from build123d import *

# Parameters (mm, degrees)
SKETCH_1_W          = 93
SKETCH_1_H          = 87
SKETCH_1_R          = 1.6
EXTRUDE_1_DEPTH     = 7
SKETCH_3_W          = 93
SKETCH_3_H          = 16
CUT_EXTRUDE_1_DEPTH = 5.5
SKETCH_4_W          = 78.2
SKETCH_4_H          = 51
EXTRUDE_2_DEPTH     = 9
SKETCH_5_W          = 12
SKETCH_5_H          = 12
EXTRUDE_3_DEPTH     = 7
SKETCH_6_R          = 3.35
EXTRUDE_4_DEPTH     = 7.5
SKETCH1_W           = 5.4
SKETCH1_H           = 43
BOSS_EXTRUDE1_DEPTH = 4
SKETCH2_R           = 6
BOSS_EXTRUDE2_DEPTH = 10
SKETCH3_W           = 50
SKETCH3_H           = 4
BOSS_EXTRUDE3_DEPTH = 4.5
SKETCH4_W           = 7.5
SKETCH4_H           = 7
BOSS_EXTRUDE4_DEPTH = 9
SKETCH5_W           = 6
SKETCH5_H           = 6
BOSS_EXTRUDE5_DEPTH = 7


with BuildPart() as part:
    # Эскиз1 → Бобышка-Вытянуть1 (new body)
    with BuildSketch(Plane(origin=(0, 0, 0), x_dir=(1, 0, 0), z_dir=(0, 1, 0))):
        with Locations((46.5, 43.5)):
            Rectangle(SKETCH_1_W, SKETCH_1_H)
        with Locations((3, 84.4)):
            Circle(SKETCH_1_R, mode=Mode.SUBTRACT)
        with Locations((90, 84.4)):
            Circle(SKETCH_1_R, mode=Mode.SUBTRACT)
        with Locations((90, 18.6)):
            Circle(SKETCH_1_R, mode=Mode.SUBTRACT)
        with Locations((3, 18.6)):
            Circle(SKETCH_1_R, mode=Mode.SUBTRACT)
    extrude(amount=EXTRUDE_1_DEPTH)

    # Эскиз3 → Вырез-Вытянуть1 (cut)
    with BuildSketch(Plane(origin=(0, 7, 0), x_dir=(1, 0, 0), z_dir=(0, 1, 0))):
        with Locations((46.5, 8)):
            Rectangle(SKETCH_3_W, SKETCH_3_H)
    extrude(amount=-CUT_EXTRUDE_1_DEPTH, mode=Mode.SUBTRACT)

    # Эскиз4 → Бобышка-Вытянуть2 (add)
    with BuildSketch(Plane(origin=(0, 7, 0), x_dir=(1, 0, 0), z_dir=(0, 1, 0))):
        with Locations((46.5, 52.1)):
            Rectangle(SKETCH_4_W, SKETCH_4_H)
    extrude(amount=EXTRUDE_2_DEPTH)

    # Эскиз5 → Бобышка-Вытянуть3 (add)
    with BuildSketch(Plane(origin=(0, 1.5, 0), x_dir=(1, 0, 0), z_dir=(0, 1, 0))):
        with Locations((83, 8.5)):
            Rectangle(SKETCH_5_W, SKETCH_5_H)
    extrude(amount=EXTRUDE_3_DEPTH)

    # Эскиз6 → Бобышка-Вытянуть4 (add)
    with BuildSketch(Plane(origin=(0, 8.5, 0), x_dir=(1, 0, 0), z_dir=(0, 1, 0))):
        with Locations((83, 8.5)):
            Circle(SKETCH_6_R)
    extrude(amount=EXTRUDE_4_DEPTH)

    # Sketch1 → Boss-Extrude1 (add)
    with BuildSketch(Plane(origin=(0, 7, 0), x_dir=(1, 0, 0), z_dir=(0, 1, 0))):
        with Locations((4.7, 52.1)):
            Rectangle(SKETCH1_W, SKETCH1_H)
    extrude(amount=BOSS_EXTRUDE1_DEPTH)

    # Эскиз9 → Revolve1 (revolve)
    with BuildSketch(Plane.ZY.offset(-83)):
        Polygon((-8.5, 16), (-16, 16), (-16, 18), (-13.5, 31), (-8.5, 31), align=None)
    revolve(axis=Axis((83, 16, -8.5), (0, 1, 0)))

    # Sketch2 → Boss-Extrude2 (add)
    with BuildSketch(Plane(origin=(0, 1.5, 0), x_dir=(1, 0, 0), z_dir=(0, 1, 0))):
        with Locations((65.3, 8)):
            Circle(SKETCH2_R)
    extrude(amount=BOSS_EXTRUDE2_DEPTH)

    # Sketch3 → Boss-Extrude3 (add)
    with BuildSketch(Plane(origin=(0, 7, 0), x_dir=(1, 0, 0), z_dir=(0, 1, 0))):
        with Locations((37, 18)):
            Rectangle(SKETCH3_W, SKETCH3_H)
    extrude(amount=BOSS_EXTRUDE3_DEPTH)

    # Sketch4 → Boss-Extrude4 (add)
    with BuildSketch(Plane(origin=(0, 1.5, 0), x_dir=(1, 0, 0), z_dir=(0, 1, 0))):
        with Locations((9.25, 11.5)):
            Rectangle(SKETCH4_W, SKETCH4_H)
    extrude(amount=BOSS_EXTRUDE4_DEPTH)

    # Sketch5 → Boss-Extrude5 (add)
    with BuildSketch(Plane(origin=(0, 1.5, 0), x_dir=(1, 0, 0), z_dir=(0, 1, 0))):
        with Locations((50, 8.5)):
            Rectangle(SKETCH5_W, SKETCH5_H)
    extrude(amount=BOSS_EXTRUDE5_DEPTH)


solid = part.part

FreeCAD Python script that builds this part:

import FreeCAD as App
import Part
import Sketcher
Q = App.Units.Quantity

doc = App.newDocument("Part")
body = doc.addObject("PartDesign::Body", "Body")

# Sketch on XZ plane
sketch1 = body.newObject("Sketcher::SketchObject", "Sketch")
sketch1.AttachmentSupport = (doc.getObject("XZ_Plane"), [""])
sketch1.MapMode = "FlatFace"
sketch1.addGeometry(Part.LineSegment(App.Vector(0, -87, 0), App.Vector(0, 0, 0)), False)
sketch1.addGeometry(Part.LineSegment(App.Vector(0, 0, 0), App.Vector(93, 0, 0)), False)
sketch1.addGeometry(Part.LineSegment(App.Vector(93, 0, 0), App.Vector(93, -87, 0)), False)
sketch1.addGeometry(Part.LineSegment(App.Vector(93, -87, 0), App.Vector(0, -87, 0)), False)
sketch1.addGeometry(Part.Circle(App.Vector(3, -18.6, 0), App.Vector(0, 0, 1), 1.6), False)
sketch1.addGeometry(Part.Circle(App.Vector(90, -18.6, 0), App.Vector(0, 0, 1), 1.6), False)
sketch1.addGeometry(Part.Circle(App.Vector(3, -84.4, 0), App.Vector(0, 0, 1), 1.6), False)
sketch1.addGeometry(Part.Circle(App.Vector(90, -84.4, 0), App.Vector(0, 0, 1), 1.6), False)
sketch1.addConstraint(Sketcher.Constraint("Coincident", 0, 2, 1, 1))
sketch1.addConstraint(Sketcher.Constraint("Coincident", 1, 2, 2, 1))
sketch1.addConstraint(Sketcher.Constraint("Coincident", 2, 2, 3, 1))
sketch1.addConstraint(Sketcher.Constraint("Coincident", 3, 2, 0, 1))
sketch1.addConstraint(Sketcher.Constraint("Vertical", 0))
sketch1.addConstraint(Sketcher.Constraint("Horizontal", 1))
sketch1.addConstraint(Sketcher.Constraint("Vertical", 2))
sketch1.addConstraint(Sketcher.Constraint("Horizontal", 3))
sketch1.addConstraint(Sketcher.Constraint("Coincident", 0, 2, -1, 1))
sketch1.addConstraint(Sketcher.Constraint("Equal", 4, 5))
sketch1.addConstraint(Sketcher.Constraint("Equal", 5, 6))
sketch1.addConstraint(Sketcher.Constraint("Equal", 6, 7))
sketch1.addConstraint(Sketcher.Constraint("Horizontal", 4, 3, 5, 3))
sketch1.addConstraint(Sketcher.Constraint("Horizontal", 6, 3, 7, 3))
sketch1.addConstraint(Sketcher.Constraint("Vertical", 4, 3, 6, 3))
sketch1.addConstraint(Sketcher.Constraint("Vertical", 5, 3, 7, 3))
sketch1.addConstraint(Sketcher.Constraint("Diameter", 4, Q("3.2 mm")))
sketch1.addConstraint(Sketcher.Constraint("DistanceX", 1, 1, 1, 2, Q("93 mm")))
sketch1.addConstraint(Sketcher.Constraint("DistanceY", 0, 1, 0, 2, Q("87 mm")))
sketch1.addConstraint(Sketcher.Constraint("DistanceX", -1, 1, 4, 3, Q("3 mm")))
sketch1.addConstraint(Sketcher.Constraint("DistanceX", -1, 1, 5, 3, Q("90 mm")))
sketch1.addConstraint(Sketcher.Constraint("DistanceY", 4, 3, -1, 1, Q("18.6 mm")))
sketch1.addConstraint(Sketcher.Constraint("DistanceY", 6, 3, -1, 1, Q("84.4 mm")))
pad1 = body.newObject("PartDesign::Pad", "Pad")
pad1.Profile = sketch1
pad1.Length = 7
pad1.Reversed = True

# Sketch on XZ plane
sketch2 = body.newObject("Sketcher::SketchObject", "Sketch001")
sketch2.AttachmentSupport = (doc.getObject("XZ_Plane"), [""])
sketch2.MapMode = "FlatFace"
sketch2.AttachmentOffset = App.Placement(App.Vector(0, 0, -7), App.Rotation())
sketch2.addGeometry(Part.LineSegment(App.Vector(0, -16, 0), App.Vector(0, 0, 0)), False)
sketch2.addGeometry(Part.LineSegment(App.Vector(0, 0, 0), App.Vector(93, 0, 0)), False)
sketch2.addGeometry(Part.LineSegment(App.Vector(93, 0, 0), App.Vector(93, -16, 0)), False)
sketch2.addGeometry(Part.LineSegment(App.Vector(93, -16, 0), App.Vector(0, -16, 0)), False)
sketch2.addConstraint(Sketcher.Constraint("Coincident", 0, 2, 1, 1))
sketch2.addConstraint(Sketcher.Constraint("Coincident", 1, 2, 2, 1))
sketch2.addConstraint(Sketcher.Constraint("Coincident", 2, 2, 3, 1))
sketch2.addConstraint(Sketcher.Constraint("Coincident", 3, 2, 0, 1))
sketch2.addConstraint(Sketcher.Constraint("Vertical", 0))
sketch2.addConstraint(Sketcher.Constraint("Horizontal", 1))
sketch2.addConstraint(Sketcher.Constraint("Vertical", 2))
sketch2.addConstraint(Sketcher.Constraint("Horizontal", 3))
sketch2.addConstraint(Sketcher.Constraint("Coincident", 0, 2, -1, 1))
sketch2.addConstraint(Sketcher.Constraint("DistanceX", 1, 1, 1, 2, Q("93 mm")))
sketch2.addConstraint(Sketcher.Constraint("DistanceY", 0, 1, 0, 2, Q("16 mm")))
pocket1 = body.newObject("PartDesign::Pocket", "Pocket")
pocket1.Profile = sketch2
pocket1.Length = 5.5
pocket1.Reversed = True

# Sketch on XZ plane
sketch3 = body.newObject("Sketcher::SketchObject", "Sketch002")
sketch3.AttachmentSupport = (doc.getObject("XZ_Plane"), [""])
sketch3.MapMode = "FlatFace"
sketch3.AttachmentOffset = App.Placement(App.Vector(0, 0, -7), App.Rotation())
sketch3.addGeometry(Part.LineSegment(App.Vector(7.4, -77.6, 0), App.Vector(7.4, -26.6, 0)), False)
sketch3.addGeometry(Part.LineSegment(App.Vector(7.4, -26.6, 0), App.Vector(85.6, -26.6, 0)), False)
sketch3.addGeometry(Part.LineSegment(App.Vector(85.6, -26.6, 0), App.Vector(85.6, -77.6, 0)), False)
sketch3.addGeometry(Part.LineSegment(App.Vector(85.6, -77.6, 0), App.Vector(7.4, -77.6, 0)), False)
sketch3.addConstraint(Sketcher.Constraint("Coincident", 0, 2, 1, 1))
sketch3.addConstraint(Sketcher.Constraint("Coincident", 1, 2, 2, 1))
sketch3.addConstraint(Sketcher.Constraint("Coincident", 2, 2, 3, 1))
sketch3.addConstraint(Sketcher.Constraint("Coincident", 3, 2, 0, 1))
sketch3.addConstraint(Sketcher.Constraint("Vertical", 0))
sketch3.addConstraint(Sketcher.Constraint("Horizontal", 1))
sketch3.addConstraint(Sketcher.Constraint("Vertical", 2))
sketch3.addConstraint(Sketcher.Constraint("Horizontal", 3))
sketch3.addConstraint(Sketcher.Constraint("DistanceY", 0, 1, 0, 2, Q("51 mm")))
sketch3.addConstraint(Sketcher.Constraint("DistanceX", 1, 1, 1, 2, Q("78.2 mm")))
sketch3.addConstraint(Sketcher.Constraint("DistanceX", -1, 1, 0, 2, Q("7.4 mm")))
sketch3.addConstraint(Sketcher.Constraint("DistanceY", 0, 2, -1, 1, Q("26.6 mm")))
pad2 = body.newObject("PartDesign::Pad", "Pad001")
pad2.Profile = sketch3
pad2.Length = 9
pad2.Reversed = True

# Sketch on XZ plane
sketch4 = body.newObject("Sketcher::SketchObject", "Sketch003")
sketch4.AttachmentSupport = (doc.getObject("XZ_Plane"), [""])
sketch4.MapMode = "FlatFace"
sketch4.AttachmentOffset = App.Placement(App.Vector(0, 0, -1.5), App.Rotation())
sketch4.addGeometry(Part.LineSegment(App.Vector(77, -14.5, 0), App.Vector(77, -2.5, 0)), False)
sketch4.addGeometry(Part.LineSegment(App.Vector(77, -2.5, 0), App.Vector(89, -2.5, 0)), False)
sketch4.addGeometry(Part.LineSegment(App.Vector(89, -2.5, 0), App.Vector(89, -14.5, 0)), False)
sketch4.addGeometry(Part.LineSegment(App.Vector(89, -14.5, 0), App.Vector(77, -14.5, 0)), False)
sketch4.addConstraint(Sketcher.Constraint("Coincident", 0, 2, 1, 1))
sketch4.addConstraint(Sketcher.Constraint("Coincident", 1, 2, 2, 1))
sketch4.addConstraint(Sketcher.Constraint("Coincident", 2, 2, 3, 1))
sketch4.addConstraint(Sketcher.Constraint("Coincident", 3, 2, 0, 1))
sketch4.addConstraint(Sketcher.Constraint("Vertical", 0))
sketch4.addConstraint(Sketcher.Constraint("Horizontal", 1))
sketch4.addConstraint(Sketcher.Constraint("Vertical", 2))
sketch4.addConstraint(Sketcher.Constraint("Horizontal", 3))
sketch4.addConstraint(Sketcher.Constraint("Equal", 3, 0))
sketch4.addConstraint(Sketcher.Constraint("DistanceX", 1, 1, 1, 2, Q("12 mm")))
sketch4.addConstraint(Sketcher.Constraint("DistanceX", -1, 1, 0, 2, Q("77 mm")))
sketch4.addConstraint(Sketcher.Constraint("DistanceY", 0, 2, -1, 1, Q("2.5 mm")))
pad3 = body.newObject("PartDesign::Pad", "Pad002")
pad3.Profile = sketch4
pad3.Length = 7
pad3.Reversed = True

# Sketch on XZ plane
sketch5 = body.newObject("Sketcher::SketchObject", "Sketch004")
sketch5.AttachmentSupport = (doc.getObject("XZ_Plane"), [""])
sketch5.MapMode = "FlatFace"
sketch5.AttachmentOffset = App.Placement(App.Vector(0, 0, -8.5), App.Rotation())
sketch5.addGeometry(Part.Circle(App.Vector(83, -8.5, 0), App.Vector(0, 0, 1), 3.35), False)
sketch5.addConstraint(Sketcher.Constraint("Diameter", 0, Q("6.7 mm")))
sketch5.addConstraint(Sketcher.Constraint("DistanceX", -1, 1, 0, 3, Q("83 mm")))
sketch5.addConstraint(Sketcher.Constraint("DistanceY", 0, 3, -1, 1, Q("8.5 mm")))
pad4 = body.newObject("PartDesign::Pad", "Pad003")
pad4.Profile = sketch5
pad4.Length = 7.5
pad4.Reversed = True

# Sketch on XZ plane
sketch6 = body.newObject("Sketcher::SketchObject", "Sketch005")
sketch6.AttachmentSupport = (doc.getObject("XZ_Plane"), [""])
sketch6.MapMode = "FlatFace"
sketch6.AttachmentOffset = App.Placement(App.Vector(0, 0, -7), App.Rotation())
sketch6.addGeometry(Part.LineSegment(App.Vector(2, -73.6, 0), App.Vector(2, -30.6, 0)), False)
sketch6.addGeometry(Part.LineSegment(App.Vector(2, -30.6, 0), App.Vector(7.4, -30.6, 0)), False)
sketch6.addGeometry(Part.LineSegment(App.Vector(7.4, -30.6, 0), App.Vector(7.4, -73.6, 0)), False)
sketch6.addGeometry(Part.LineSegment(App.Vector(7.4, -73.6, 0), App.Vector(2, -73.6, 0)), False)
sketch6.addConstraint(Sketcher.Constraint("Coincident", 0, 2, 1, 1))
sketch6.addConstraint(Sketcher.Constraint("Coincident", 1, 2, 2, 1))
sketch6.addConstraint(Sketcher.Constraint("Coincident", 2, 2, 3, 1))
sketch6.addConstraint(Sketcher.Constraint("Coincident", 3, 2, 0, 1))
sketch6.addConstraint(Sketcher.Constraint("Vertical", 0))
sketch6.addConstraint(Sketcher.Constraint("Horizontal", 1))
sketch6.addConstraint(Sketcher.Constraint("Vertical", 2))
sketch6.addConstraint(Sketcher.Constraint("Horizontal", 3))
sketch6.addConstraint(Sketcher.Constraint("DistanceY", 0, 1, 0, 2, Q("43 mm")))
sketch6.addConstraint(Sketcher.Constraint("DistanceX", 1, 1, 1, 2, Q("5.4 mm")))
sketch6.addConstraint(Sketcher.Constraint("DistanceX", -1, 1, 0, 2, Q("2 mm")))
sketch6.addConstraint(Sketcher.Constraint("DistanceY", 0, 2, -1, 1, Q("30.6 mm")))
pad5 = body.newObject("PartDesign::Pad", "Pad004")
pad5.Profile = sketch6
pad5.Length = 4
pad5.Reversed = True

# Sketch on YZ plane
sketch7 = body.newObject("Sketcher::SketchObject", "Sketch006")
sketch7.AttachmentSupport = (doc.getObject("YZ_Plane"), [""])
sketch7.MapMode = "FlatFace"
sketch7.AttachmentOffset = App.Placement(App.Vector(0, 0, 83), App.Rotation())
sketch7.addGeometry(Part.LineSegment(App.Vector(16, -16, 0), App.Vector(16, -8.5, 0)), False)
sketch7.addGeometry(Part.LineSegment(App.Vector(16, -8.5, 0), App.Vector(31, -8.5, 0)), False)
sketch7.addGeometry(Part.LineSegment(App.Vector(31, -8.5, 0), App.Vector(31, -13.5, 0)), False)
sketch7.addGeometry(Part.LineSegment(App.Vector(31, -13.5, 0), App.Vector(18, -16, 0)), False)
sketch7.addGeometry(Part.LineSegment(App.Vector(18, -16, 0), App.Vector(16, -16, 0)), False)
sketch7.addGeometry(Part.LineSegment(App.Vector(16, -8.5, 0), App.Vector(31, -8.5, 0)), True)  # axis
sketch7.addConstraint(Sketcher.Constraint("Coincident", 0, 2, 1, 1))
sketch7.addConstraint(Sketcher.Constraint("Coincident", 1, 2, 2, 1))
sketch7.addConstraint(Sketcher.Constraint("Coincident", 2, 2, 3, 1))
sketch7.addConstraint(Sketcher.Constraint("Coincident", 3, 2, 4, 1))
sketch7.addConstraint(Sketcher.Constraint("Coincident", 4, 2, 0, 1))
sketch7.addConstraint(Sketcher.Constraint("Vertical", 0))
sketch7.addConstraint(Sketcher.Constraint("Horizontal", 1))
sketch7.addConstraint(Sketcher.Constraint("Vertical", 2))
sketch7.addConstraint(Sketcher.Constraint("Horizontal", 4))
sketch7.addConstraint(Sketcher.Constraint("Horizontal", 5))
sketch7.addConstraint(Sketcher.Constraint("Coincident", 5, 1, 0, 2))
sketch7.addConstraint(Sketcher.Constraint("Vertical", 2, 2, 5, 2))
sketch7.addConstraint(Sketcher.Constraint("DistanceX", 1, 1, 1, 2, Q("15 mm")))
sketch7.addConstraint(Sketcher.Constraint("DistanceX", 4, 2, 4, 1, Q("2 mm")))
sketch7.addConstraint(Sketcher.Constraint("DistanceY", 2, 2, 2, 1, Q("5 mm")))
sketch7.addConstraint(Sketcher.Constraint("DistanceY", 0, 1, 0, 2, Q("7.5 mm")))
sketch7.addConstraint(Sketcher.Constraint("DistanceX", -1, 1, 0, 2, Q("16 mm")))
sketch7.addConstraint(Sketcher.Constraint("DistanceY", 3, 2, -1, 1, Q("16 mm")))
revolution = body.newObject("PartDesign::Revolution", "Revolution")
revolution.Profile = sketch7
revolution.ReferenceAxis = (sketch7, ["Axis0"])
revolution.Angle = 360

# Sketch on XZ plane
sketch8 = body.newObject("Sketcher::SketchObject", "Sketch007")
sketch8.AttachmentSupport = (doc.getObject("XZ_Plane"), [""])
sketch8.MapMode = "FlatFace"
sketch8.AttachmentOffset = App.Placement(App.Vector(0, 0, -1.5), App.Rotation())
sketch8.addGeometry(Part.Circle(App.Vector(65.3, -8, 0), App.Vector(0, 0, 1), 6), False)
sketch8.addConstraint(Sketcher.Constraint("Diameter", 0, Q("12 mm")))
sketch8.addConstraint(Sketcher.Constraint("DistanceY", 0, 3, -1, 1, Q("8 mm")))
sketch8.addConstraint(Sketcher.Constraint("DistanceX", -1, 1, 0, 3, Q("65.3 mm")))
pad6 = body.newObject("PartDesign::Pad", "Pad005")
pad6.Profile = sketch8
pad6.Length = 10
pad6.Reversed = True

# Sketch on XZ plane
sketch9 = body.newObject("Sketcher::SketchObject", "Sketch008")
sketch9.AttachmentSupport = (doc.getObject("XZ_Plane"), [""])
sketch9.MapMode = "FlatFace"
sketch9.AttachmentOffset = App.Placement(App.Vector(0, 0, -7), App.Rotation())
sketch9.addGeometry(Part.LineSegment(App.Vector(12, -20, 0), App.Vector(12, -16, 0)), False)
sketch9.addGeometry(Part.LineSegment(App.Vector(12, -16, 0), App.Vector(62, -16, 0)), False)
sketch9.addGeometry(Part.LineSegment(App.Vector(62, -16, 0), App.Vector(62, -20, 0)), False)
sketch9.addGeometry(Part.LineSegment(App.Vector(62, -20, 0), App.Vector(12, -20, 0)), False)
sketch9.addConstraint(Sketcher.Constraint("Coincident", 0, 2, 1, 1))
sketch9.addConstraint(Sketcher.Constraint("Coincident", 1, 2, 2, 1))
sketch9.addConstraint(Sketcher.Constraint("Coincident", 2, 2, 3, 1))
sketch9.addConstraint(Sketcher.Constraint("Coincident", 3, 2, 0, 1))
sketch9.addConstraint(Sketcher.Constraint("Vertical", 0))
sketch9.addConstraint(Sketcher.Constraint("Horizontal", 1))
sketch9.addConstraint(Sketcher.Constraint("Vertical", 2))
sketch9.addConstraint(Sketcher.Constraint("Horizontal", 3))
sketch9.addConstraint(Sketcher.Constraint("DistanceX", 1, 1, 1, 2, Q("50 mm")))
sketch9.addConstraint(Sketcher.Constraint("DistanceY", 0, 1, 0, 2, Q("4 mm")))
sketch9.addConstraint(Sketcher.Constraint("DistanceX", -1, 1, 0, 2, Q("12 mm")))
sketch9.addConstraint(Sketcher.Constraint("DistanceY", 0, 2, -1, 1, Q("16 mm")))
pad7 = body.newObject("PartDesign::Pad", "Pad006")
pad7.Profile = sketch9
pad7.Length = 4.5
pad7.Reversed = True

# Sketch on XZ plane
sketch10 = body.newObject("Sketcher::SketchObject", "Sketch009")
sketch10.AttachmentSupport = (doc.getObject("XZ_Plane"), [""])
sketch10.MapMode = "FlatFace"
sketch10.AttachmentOffset = App.Placement(App.Vector(0, 0, -1.5), App.Rotation())
sketch10.addGeometry(Part.LineSegment(App.Vector(5.5, -15, 0), App.Vector(5.5, -8, 0)), False)
sketch10.addGeometry(Part.LineSegment(App.Vector(5.5, -8, 0), App.Vector(13, -8, 0)), False)
sketch10.addGeometry(Part.LineSegment(App.Vector(13, -8, 0), App.Vector(13, -15, 0)), False)
sketch10.addGeometry(Part.LineSegment(App.Vector(13, -15, 0), App.Vector(5.5, -15, 0)), False)
sketch10.addConstraint(Sketcher.Constraint("Coincident", 0, 2, 1, 1))
sketch10.addConstraint(Sketcher.Constraint("Coincident", 1, 2, 2, 1))
sketch10.addConstraint(Sketcher.Constraint("Coincident", 2, 2, 3, 1))
sketch10.addConstraint(Sketcher.Constraint("Coincident", 3, 2, 0, 1))
sketch10.addConstraint(Sketcher.Constraint("Vertical", 0))
sketch10.addConstraint(Sketcher.Constraint("Horizontal", 1))
sketch10.addConstraint(Sketcher.Constraint("Vertical", 2))
sketch10.addConstraint(Sketcher.Constraint("Horizontal", 3))
sketch10.addConstraint(Sketcher.Constraint("DistanceY", 0, 1, 0, 2, Q("7 mm")))
sketch10.addConstraint(Sketcher.Constraint("DistanceX", 1, 1, 1, 2, Q("7.5 mm")))
sketch10.addConstraint(Sketcher.Constraint("DistanceY", 0, 2, -1, 1, Q("8 mm")))
sketch10.addConstraint(Sketcher.Constraint("DistanceX", -1, 1, 1, 2, Q("13 mm")))
pad8 = body.newObject("PartDesign::Pad", "Pad007")
pad8.Profile = sketch10
pad8.Length = 9
pad8.Reversed = True

# Sketch on XZ plane
sketch11 = body.newObject("Sketcher::SketchObject", "Sketch010")
sketch11.AttachmentSupport = (doc.getObject("XZ_Plane"), [""])
sketch11.MapMode = "FlatFace"
sketch11.AttachmentOffset = App.Placement(App.Vector(0, 0, -1.5), App.Rotation())
sketch11.addGeometry(Part.LineSegment(App.Vector(47, -11.5, 0), App.Vector(47, -5.5, 0)), False)
sketch11.addGeometry(Part.LineSegment(App.Vector(47, -5.5, 0), App.Vector(53, -5.5, 0)), False)
sketch11.addGeometry(Part.LineSegment(App.Vector(53, -5.5, 0), App.Vector(53, -11.5, 0)), False)
sketch11.addGeometry(Part.LineSegment(App.Vector(53, -11.5, 0), App.Vector(47, -11.5, 0)), False)
sketch11.addConstraint(Sketcher.Constraint("Coincident", 0, 2, 1, 1))
sketch11.addConstraint(Sketcher.Constraint("Coincident", 1, 2, 2, 1))
sketch11.addConstraint(Sketcher.Constraint("Coincident", 2, 2, 3, 1))
sketch11.addConstraint(Sketcher.Constraint("Coincident", 3, 2, 0, 1))
sketch11.addConstraint(Sketcher.Constraint("Vertical", 0))
sketch11.addConstraint(Sketcher.Constraint("Horizontal", 1))
sketch11.addConstraint(Sketcher.Constraint("Vertical", 2))
sketch11.addConstraint(Sketcher.Constraint("Horizontal", 3))
sketch11.addConstraint(Sketcher.Constraint("Equal", 3, 0))
sketch11.addConstraint(Sketcher.Constraint("DistanceX", 1, 1, 1, 2, Q("6 mm")))
sketch11.addConstraint(Sketcher.Constraint("DistanceX", -1, 1, 0, 2, Q("47 mm")))
sketch11.addConstraint(Sketcher.Constraint("DistanceY", 0, 2, -1, 1, Q("5.5 mm")))
pad9 = body.newObject("PartDesign::Pad", "Pad008")
pad9.Profile = sketch11
pad9.Length = 7
pad9.Reversed = True

doc.recompute()
